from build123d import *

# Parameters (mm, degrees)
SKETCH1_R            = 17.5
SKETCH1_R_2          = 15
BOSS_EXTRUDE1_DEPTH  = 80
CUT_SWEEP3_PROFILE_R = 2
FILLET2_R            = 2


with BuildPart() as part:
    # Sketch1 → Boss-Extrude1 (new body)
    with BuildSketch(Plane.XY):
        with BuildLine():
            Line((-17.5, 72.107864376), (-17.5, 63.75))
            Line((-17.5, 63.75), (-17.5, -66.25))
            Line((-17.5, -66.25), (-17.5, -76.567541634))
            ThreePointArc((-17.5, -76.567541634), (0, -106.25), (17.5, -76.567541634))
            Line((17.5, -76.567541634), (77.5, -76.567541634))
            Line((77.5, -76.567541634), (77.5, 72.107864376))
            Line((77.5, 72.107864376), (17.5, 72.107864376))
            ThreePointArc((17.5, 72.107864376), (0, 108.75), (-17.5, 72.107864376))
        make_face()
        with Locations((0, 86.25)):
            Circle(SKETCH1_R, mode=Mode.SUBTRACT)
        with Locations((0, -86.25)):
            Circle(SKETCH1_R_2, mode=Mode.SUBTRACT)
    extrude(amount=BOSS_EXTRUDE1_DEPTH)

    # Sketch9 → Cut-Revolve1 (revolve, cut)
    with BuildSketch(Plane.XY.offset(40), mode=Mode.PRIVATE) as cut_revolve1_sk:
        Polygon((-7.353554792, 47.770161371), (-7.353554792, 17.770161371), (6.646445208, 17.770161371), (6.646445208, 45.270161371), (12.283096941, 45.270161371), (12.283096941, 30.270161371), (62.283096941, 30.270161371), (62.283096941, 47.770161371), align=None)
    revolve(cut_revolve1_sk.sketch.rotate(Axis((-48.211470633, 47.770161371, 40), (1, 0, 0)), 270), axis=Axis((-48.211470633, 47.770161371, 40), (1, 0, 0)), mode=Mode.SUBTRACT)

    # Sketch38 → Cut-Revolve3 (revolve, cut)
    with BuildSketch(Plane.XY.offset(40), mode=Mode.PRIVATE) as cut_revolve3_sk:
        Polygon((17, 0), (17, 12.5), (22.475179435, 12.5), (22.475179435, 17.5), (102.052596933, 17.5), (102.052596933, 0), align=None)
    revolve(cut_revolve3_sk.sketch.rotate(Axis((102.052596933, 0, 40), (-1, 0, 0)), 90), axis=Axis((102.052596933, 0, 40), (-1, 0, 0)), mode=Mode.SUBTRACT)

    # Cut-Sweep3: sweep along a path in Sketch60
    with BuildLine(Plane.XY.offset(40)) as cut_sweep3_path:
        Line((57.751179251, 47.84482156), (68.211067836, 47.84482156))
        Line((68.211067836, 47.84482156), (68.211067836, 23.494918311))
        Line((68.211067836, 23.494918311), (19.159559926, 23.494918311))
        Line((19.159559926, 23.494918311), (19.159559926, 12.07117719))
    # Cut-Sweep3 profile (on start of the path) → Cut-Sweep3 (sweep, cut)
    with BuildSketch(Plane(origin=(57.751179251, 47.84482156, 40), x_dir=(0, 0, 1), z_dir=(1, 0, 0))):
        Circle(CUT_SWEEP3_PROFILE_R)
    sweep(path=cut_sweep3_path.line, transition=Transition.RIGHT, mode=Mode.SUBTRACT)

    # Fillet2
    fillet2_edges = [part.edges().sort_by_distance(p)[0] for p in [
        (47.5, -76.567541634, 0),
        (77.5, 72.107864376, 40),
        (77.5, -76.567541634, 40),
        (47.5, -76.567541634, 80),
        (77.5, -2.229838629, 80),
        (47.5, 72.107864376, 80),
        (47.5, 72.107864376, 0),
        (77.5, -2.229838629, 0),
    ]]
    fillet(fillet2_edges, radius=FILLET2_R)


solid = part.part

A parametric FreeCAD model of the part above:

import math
import FreeCAD as App
import Part
import Sketcher
from FreeCAD import Vector


def edges_at(feature, points):
    """Names of the edges that pass closest to the given points."""
    edges = feature.Shape.Edges
    near = lambda p: min(range(len(edges)), key=lambda i: edges[i].distToShape(Part.Vertex(*p))[0])
    return sorted({f"Edge{near(p) + 1}" for p in points})

doc = App.newDocument("Part")
body = doc.addObject("PartDesign::Body", "Body")

sketch1 = body.newObject("Sketcher::SketchObject", "Sketch")
sketch1.AttachmentSupport = (doc.getObject("XY_Plane"), [""])
sketch1.MapMode = "FlatFace"
sketch1.addGeometry([
    Part.LineSegment(Vector(-18, 72, 0), Vector(-18, -77, 0)),
    Part.ArcOfCircle(Part.Circle(Vector(0, -86, 0), Vector(0, 0, 1), 20), math.radians(151), math.radians(389)),
    Part.LineSegment(Vector(18, -77, 0), Vector(78, -77, 0)),
    Part.LineSegment(Vector(78, -77, 0), Vector(78, 72, 0)),
    Part.LineSegment(Vector(78, 72, 0), Vector(18, 72, 0)),
    Part.ArcOfCircle(Part.Circle(Vector(0, 86, 0), Vector(0, 0, 1), 22), math.radians(-39), math.radians(219)),
    Part.Circle(Vector(0, -86, 0), Vector(0, 0, 1), 15),
    Part.Circle(Vector(0, 86, 0), Vector(0, 0, 1), 18),
], False)
sketch1.addConstraint([
    Sketcher.Constraint("Coincident", 0, 2, 1, 1),
    Sketcher.Constraint("Coincident", 1, 2, 2, 1),
    Sketcher.Constraint("Coincident", 2, 2, 3, 1),
    Sketcher.Constraint("Coincident", 3, 2, 4, 1),
    Sketcher.Constraint("Coincident", 4, 2, 5, 1),
    Sketcher.Constraint("Coincident", 5, 2, 0, 1),
    Sketcher.Constraint("Vertical", 0),
    Sketcher.Constraint("Horizontal", 2),
    Sketcher.Constraint("Vertical", 3),
    Sketcher.Constraint("Horizontal", 4),
    Sketcher.Constraint("Coincident", 6, 3, 1, 3),
    Sketcher.Constraint("Coincident", 7, 3, 5, 3),
    Sketcher.Constraint("Symmetric", 1, 3, 5, 3, -1, 1),
    Sketcher.Constraint("Symmetric", 0, 2, 1, 2, -2),
    Sketcher.Constraint("Horizontal", 4, 2, 5, 2),
    Sketcher.Constraint("Diameter", 6, 30.0),
    Sketcher.Constraint("Diameter", 7, 35.0),
    Sketcher.Constraint("Radius", 1, 20.0),
    Sketcher.Constraint("Radius", 5, 22.5),
    Sketcher.Constraint("DistanceX", 2, 1, 2, 2, 60.0),
    Sketcher.Constraint("DistanceX", 0, 2, 1, 2, 35.0),
    Sketcher.Constraint("DistanceY", 1, 3, 5, 3, 172.5),
])
pad1 = body.newObject("PartDesign::Pad", "Pad")
pad1.Profile = sketch1
pad1.Length = 80

sketch2 = body.newObject("Sketcher::SketchObject", "Sketch001")
sketch2.AttachmentSupport = (doc.getObject("XY_Plane"), [""])
sketch2.MapMode = "FlatFace"
sketch2.AttachmentOffset = App.Placement(Vector(0, 0, 40), App.Rotation())
sketch2.addGeometry([
    Part.LineSegment(Vector(-7, 48, 0), Vector(-7, 18, 0)),
    Part.LineSegment(Vector(-7, 18, 0), Vector(7, 18, 0)),
    Part.LineSegment(Vector(7, 18, 0), Vector(7, 45, 0)),
    Part.LineSegment(Vector(7, 45, 0), Vector(12, 45, 0)),
    Part.LineSegment(Vector(12, 45, 0), Vector(12, 30, 0)),
    Part.LineSegment(Vector(12, 30, 0), Vector(62, 30, 0)),
    Part.LineSegment(Vector(62, 30, 0), Vector(62, 48, 0)),
    Part.LineSegment(Vector(62, 48, 0), Vector(-7, 48, 0)),
], False)
sketch2.addGeometry(Part.LineSegment(Vector(-7, 48, 0), Vector(62, 48, 0)), True)
sketch2.addConstraint([
    Sketcher.Constraint("Coincident", 0, 2, 1, 1),
    Sketcher.Constraint("Coincident", 1, 2, 2, 1),
    Sketcher.Constraint("Coincident", 2, 2, 3, 1),
    Sketcher.Constraint("Coincident", 3, 2, 4, 1),
    Sketcher.Constraint("Coincident", 4, 2, 5, 1),
    Sketcher.Constraint("Coincident", 5, 2, 6, 1),
    Sketcher.Constraint("Coincident", 6, 2, 7, 1),
    Sketcher.Constraint("Coincident", 7, 2, 0, 1),
    Sketcher.Constraint("Vertical", 0),
    Sketcher.Constraint("Horizontal", 1),
    Sketcher.Constraint("Vertical", 2),
    Sketcher.Constraint("Horizontal", 3),
    Sketcher.Constraint("Vertical", 4),
    Sketcher.Constraint("Horizontal", 5),
    Sketcher.Constraint("Vertical", 6),
    Sketcher.Constraint("Horizontal", 7),
    Sketcher.Constraint("Horizontal", 8),
    Sketcher.Constraint("Coincident", 8, 1, 7, 2),
    Sketcher.Constraint("Vertical", 5, 2, 8, 2),
    Sketcher.Constraint("DistanceX", 1, 1, 1, 2, 14.0),
    Sketcher.Constraint("DistanceX", 5, 1, 5, 2, 50.0),
    Sketcher.Constraint("DistanceY", 0, 2, 0, 1, 30.0),
    Sketcher.Constraint("DistanceY", 4, 2, 4, 1, 15.0),
    Sketcher.Constraint("DistanceY", 2, 1, 2, 2, 27.5),
    Sketcher.Constraint("DistanceX", 3, 1, 3, 2, 5.636652),
    Sketcher.Constraint("DistanceY", -1, 1, 0, 2, 17.770161),
    Sketcher.Constraint("DistanceX", 0, 2, -1, 1, 7.353555),
])
groove = body.newObject("PartDesign::Groove", "Groove")
groove.Profile = sketch2
groove.ReferenceAxis = (sketch2, ["Axis0"])
groove.Angle = 360

sketch3 = body.newObject("Sketcher::SketchObject", "Sketch002")
sketch3.AttachmentSupport = (doc.getObject("XY_Plane"), [""])
sketch3.MapMode = "FlatFace"
sketch3.AttachmentOffset = App.Placement(Vector(0, 0, 40), App.Rotation())
sketch3.addGeometry([
    Part.LineSegment(Vector(17, 12, 0), Vector(17, 0, 0)),
    Part.LineSegment(Vector(17, 0, 0), Vector(102, 0, 0)),
    Part.LineSegment(Vector(102, 0, 0), Vector(102, 18, 0)),
    Part.LineSegment(Vector(102, 18, 0), Vector(22, 18, 0)),
    Part.LineSegment(Vector(22, 18, 0), Vector(22, 12, 0)),
    Part.LineSegment(Vector(22, 12, 0), Vector(17, 12, 0)),
], False)
sketch3.addConstraint([
    Sketcher.Constraint("Coincident", 0, 2, 1, 1),
    Sketcher.Constraint("Coincident", 1, 2, 2, 1),
    Sketcher.Constraint("Coincident", 2, 2, 3, 1),
    Sketcher.Constraint("Coincident", 3, 2, 4, 1),
    Sketcher.Constraint("Coincident", 4, 2, 5, 1),
    Sketcher.Constraint("Coincident", 5, 2, 0, 1),
    Sketcher.Constraint("Vertical", 0),
    Sketcher.Constraint("Horizontal", 1),
    Sketcher.Constraint("Vertical", 2),
    Sketcher.Constraint("Horizontal", 3),
    Sketcher.Constraint("Vertical", 4),
    Sketcher.Constraint("Horizontal", 5),
    Sketcher.Constraint("PointOnObject", 0, 2, -1),
    Sketcher.Constraint("DistanceY", 4, 2, 4, 1, 5.0),
    Sketcher.Constraint("DistanceY", 0, 2, 0, 1, 12.5),
    Sketcher.Constraint("DistanceX", -1, 1, 0, 2, 17.0),
    Sketcher.Constraint("DistanceX", 5, 2, 5, 1, 5.475179),
    Sketcher.Constraint("DistanceX", 1, 1, 1, 2, 85.052597),
])
groove2 = body.newObject("PartDesign::Groove", "Groove001")
groove2.Profile = sketch3
groove2.ReferenceAxis = (sketch3, ["H_Axis"])
groove2.Angle = 360

sketch4 = body.newObject("Sketcher::SketchObject", "Sketch003")
sketch4.AttachmentSupport = (doc.getObject("YZ_Plane"), [""])
sketch4.MapMode = "FlatFace"
sketch4.AttachmentOffset = App.Placement(Vector(0, 0, 57.751179), App.Rotation())
sketch4.addGeometry(Part.Circle(Vector(47.8, 40, 0), Vector(0, 0, 1), 2), False)
sketch4.addConstraint([
    Sketcher.Constraint("Diameter", 0, 4.0),
    Sketcher.Constraint("DistanceY", -1, 1, 0, 3, 40.0),
    Sketcher.Constraint("DistanceX", -1, 1, 0, 3, 47.844822),
])

sketch5 = body.newObject("Sketcher::SketchObject", "Sketch004")
sketch5.AttachmentSupport = (doc.getObject("XY_Plane"), [""])
sketch5.MapMode = "FlatFace"
sketch5.AttachmentOffset = App.Placement(Vector(0, 0, 40), App.Rotation())
sketch5.addGeometry([
    Part.LineSegment(Vector(58, 48, 0), Vector(68, 48, 0)),
    Part.LineSegment(Vector(68, 48, 0), Vector(68, 23, 0)),
    Part.LineSegment(Vector(68, 23, 0), Vector(19, 23, 0)),
    Part.LineSegment(Vector(19, 23, 0), Vector(19, 12, 0)),
], False)
sketch5.addConstraint([
    Sketcher.Constraint("Coincident", 0, 2, 1, 1),
    Sketcher.Constraint("Coincident", 1, 2, 2, 1),
    Sketcher.Constraint("Coincident", 2, 2, 3, 1),
    Sketcher.Constraint("Horizontal", 0),
    Sketcher.Constraint("Vertical", 1),
    Sketcher.Constraint("Horizontal", 2),
    Sketcher.Constraint("Vertical", 3),
    Sketcher.Constraint("DistanceX", 0, 1, 0, 2, 10.459889),
    Sketcher.Constraint("DistanceY", 3, 2, 3, 1, 11.423741),
    Sketcher.Constraint("DistanceX", 2, 2, 2, 1, 49.051508),
    Sketcher.Constraint("DistanceY", 1, 2, 1, 1, 24.349903),
    Sketcher.Constraint("DistanceX", -1, 1, 0, 1, 57.751179),
    Sketcher.Constraint("DistanceY", -1, 1, 0, 1, 47.844822),
])
doc.recompute()

subtractivepipe = body.newObject("PartDesign::SubtractivePipe", "SubtractivePipe")
subtractivepipe.Profile = sketch4
subtractivepipe.Spine = (sketch5, ["Edge1", "Edge2", "Edge3", "Edge4"])
subtractivepipe.Transition = "Right corner"
doc.recompute()

fillet = body.newObject("PartDesign::Fillet", "Fillet")
fillet.Base = (subtractivepipe, edges_at(subtractivepipe, [
    (47.5, -76.568, 0),
    (77.5, 72.108, 40),
    (77.5, -76.568, 40),
    (47.5, -76.568, 80),
    (77.5, -2.23, 80),
    (47.5, 72.108, 80),
    (47.5, 72.108, 0),
    (77.5, -2.23, 0),
]))
fillet.Radius = 2

doc.recompute()
